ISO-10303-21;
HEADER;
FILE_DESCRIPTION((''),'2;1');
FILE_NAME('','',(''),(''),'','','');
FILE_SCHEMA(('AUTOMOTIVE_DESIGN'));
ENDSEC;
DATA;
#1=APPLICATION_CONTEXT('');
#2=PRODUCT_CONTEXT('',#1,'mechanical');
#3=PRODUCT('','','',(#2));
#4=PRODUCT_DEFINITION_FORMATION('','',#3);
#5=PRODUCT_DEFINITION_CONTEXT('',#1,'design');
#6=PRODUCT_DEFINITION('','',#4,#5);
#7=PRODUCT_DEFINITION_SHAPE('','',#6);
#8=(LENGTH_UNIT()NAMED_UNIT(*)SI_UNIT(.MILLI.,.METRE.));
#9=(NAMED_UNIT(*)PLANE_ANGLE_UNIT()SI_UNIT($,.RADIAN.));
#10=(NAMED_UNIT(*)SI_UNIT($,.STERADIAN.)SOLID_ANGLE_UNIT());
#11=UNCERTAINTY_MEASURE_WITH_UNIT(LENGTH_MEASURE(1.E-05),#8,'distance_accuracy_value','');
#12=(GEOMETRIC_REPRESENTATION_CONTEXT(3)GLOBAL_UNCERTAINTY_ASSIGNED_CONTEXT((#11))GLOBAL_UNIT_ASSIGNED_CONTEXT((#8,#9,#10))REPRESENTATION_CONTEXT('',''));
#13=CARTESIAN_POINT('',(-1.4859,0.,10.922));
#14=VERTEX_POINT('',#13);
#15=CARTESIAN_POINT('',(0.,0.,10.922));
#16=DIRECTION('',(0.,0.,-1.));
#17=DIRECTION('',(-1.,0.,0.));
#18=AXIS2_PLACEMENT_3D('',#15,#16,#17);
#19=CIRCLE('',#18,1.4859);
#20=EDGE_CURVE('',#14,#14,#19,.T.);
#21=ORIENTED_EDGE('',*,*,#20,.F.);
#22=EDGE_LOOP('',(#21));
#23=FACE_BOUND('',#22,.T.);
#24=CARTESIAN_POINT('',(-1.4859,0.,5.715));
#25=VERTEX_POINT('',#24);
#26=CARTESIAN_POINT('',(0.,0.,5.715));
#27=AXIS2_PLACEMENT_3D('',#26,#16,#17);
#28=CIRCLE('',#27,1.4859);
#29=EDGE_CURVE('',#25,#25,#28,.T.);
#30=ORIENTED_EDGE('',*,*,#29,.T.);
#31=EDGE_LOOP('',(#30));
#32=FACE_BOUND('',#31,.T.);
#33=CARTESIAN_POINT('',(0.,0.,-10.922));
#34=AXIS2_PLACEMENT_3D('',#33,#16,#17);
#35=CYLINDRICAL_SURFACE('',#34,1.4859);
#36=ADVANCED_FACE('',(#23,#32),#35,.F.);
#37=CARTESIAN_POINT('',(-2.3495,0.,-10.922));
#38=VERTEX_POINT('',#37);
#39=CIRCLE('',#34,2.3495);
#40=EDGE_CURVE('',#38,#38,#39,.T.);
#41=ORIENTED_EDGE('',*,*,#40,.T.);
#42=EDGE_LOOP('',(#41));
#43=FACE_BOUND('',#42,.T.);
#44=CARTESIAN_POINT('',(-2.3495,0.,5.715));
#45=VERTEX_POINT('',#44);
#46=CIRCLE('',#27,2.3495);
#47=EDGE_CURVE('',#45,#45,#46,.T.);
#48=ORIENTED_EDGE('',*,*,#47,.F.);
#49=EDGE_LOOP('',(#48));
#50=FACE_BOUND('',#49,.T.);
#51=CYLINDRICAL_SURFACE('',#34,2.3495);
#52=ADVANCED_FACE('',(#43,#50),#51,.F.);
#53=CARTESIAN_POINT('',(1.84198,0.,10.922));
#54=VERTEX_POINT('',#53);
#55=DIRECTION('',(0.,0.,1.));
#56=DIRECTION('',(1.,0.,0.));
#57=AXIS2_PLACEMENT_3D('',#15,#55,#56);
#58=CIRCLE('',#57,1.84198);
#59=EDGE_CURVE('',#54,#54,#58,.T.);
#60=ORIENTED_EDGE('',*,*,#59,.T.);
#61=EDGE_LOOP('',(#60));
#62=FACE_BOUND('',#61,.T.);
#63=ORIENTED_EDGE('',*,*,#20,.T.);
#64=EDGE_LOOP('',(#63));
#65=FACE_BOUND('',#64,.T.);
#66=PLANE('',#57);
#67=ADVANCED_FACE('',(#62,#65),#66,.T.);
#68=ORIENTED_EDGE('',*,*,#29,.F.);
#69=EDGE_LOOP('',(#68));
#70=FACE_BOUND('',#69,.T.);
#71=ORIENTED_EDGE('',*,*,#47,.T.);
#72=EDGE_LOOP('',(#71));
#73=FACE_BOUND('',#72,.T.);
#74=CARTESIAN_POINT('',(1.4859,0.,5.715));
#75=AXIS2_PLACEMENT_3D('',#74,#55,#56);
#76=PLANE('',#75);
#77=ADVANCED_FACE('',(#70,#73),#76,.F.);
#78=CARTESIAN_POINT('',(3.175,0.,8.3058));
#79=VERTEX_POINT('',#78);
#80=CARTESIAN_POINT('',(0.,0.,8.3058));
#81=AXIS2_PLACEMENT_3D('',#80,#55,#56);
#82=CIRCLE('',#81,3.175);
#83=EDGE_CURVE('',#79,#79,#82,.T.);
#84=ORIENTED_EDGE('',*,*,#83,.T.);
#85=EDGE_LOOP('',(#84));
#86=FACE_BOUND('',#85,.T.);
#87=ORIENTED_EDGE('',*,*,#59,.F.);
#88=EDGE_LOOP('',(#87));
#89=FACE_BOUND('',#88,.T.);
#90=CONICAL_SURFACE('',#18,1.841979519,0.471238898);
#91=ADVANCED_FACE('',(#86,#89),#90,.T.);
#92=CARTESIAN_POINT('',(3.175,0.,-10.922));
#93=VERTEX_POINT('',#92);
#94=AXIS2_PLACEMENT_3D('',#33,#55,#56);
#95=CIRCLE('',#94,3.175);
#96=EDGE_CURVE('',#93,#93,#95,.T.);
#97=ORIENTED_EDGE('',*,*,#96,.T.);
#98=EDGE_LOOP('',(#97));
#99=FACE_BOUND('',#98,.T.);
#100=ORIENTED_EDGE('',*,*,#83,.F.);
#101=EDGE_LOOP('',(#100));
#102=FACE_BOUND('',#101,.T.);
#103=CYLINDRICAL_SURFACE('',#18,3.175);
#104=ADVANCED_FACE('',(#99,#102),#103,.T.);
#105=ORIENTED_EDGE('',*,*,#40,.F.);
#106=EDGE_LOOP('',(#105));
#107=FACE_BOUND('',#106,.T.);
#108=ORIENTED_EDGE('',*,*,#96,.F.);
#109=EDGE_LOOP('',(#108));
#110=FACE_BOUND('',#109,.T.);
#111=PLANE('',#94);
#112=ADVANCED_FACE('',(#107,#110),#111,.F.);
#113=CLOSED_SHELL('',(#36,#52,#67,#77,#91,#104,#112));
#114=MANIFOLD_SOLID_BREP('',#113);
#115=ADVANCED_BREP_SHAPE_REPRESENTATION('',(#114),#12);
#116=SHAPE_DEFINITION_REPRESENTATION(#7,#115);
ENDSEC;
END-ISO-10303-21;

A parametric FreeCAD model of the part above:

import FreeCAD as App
import Part
import Sketcher
from FreeCAD import Vector
Q = App.Units.Quantity


def add_polygon(sketch, points):
    """Adds a closed chain of lines whose ends are joined by coincident constraints."""
    first, n = sketch.GeometryCount, len(points)
    for a, b in zip(points, points[1:] + points[:1]):
        sketch.addGeometry(Part.LineSegment(App.Vector(*a, 0), App.Vector(*b, 0)), False)
    for i in range(n):
        sketch.addConstraint(Sketcher.Constraint("Coincident", first + i, 2, first + (i + 1) % n, 1))

doc = App.newDocument("Part")
body = doc.addObject("PartDesign::Body", "Body")

# Sketch on XY plane
sketch1 = body.newObject("Sketcher::SketchObject", "Sketch")
sketch1.AttachmentSupport = (doc.getObject("XY_Plane"), [""])
sketch1.MapMode = "FlatFace"
sketch1.addGeometry(Part.Circle(Vector(0, 0, 0), Vector(0, 0, 1), 3.2), False)
sketch1.addConstraint([
    Sketcher.Constraint("Coincident", 0, 3, -1, 1),
    Sketcher.Constraint("Diameter", 0, Q("0.25 in")),
])
pad1 = body.newObject("PartDesign::Pad", "Pad")
pad1.Profile = sketch1
pad1.Length = Q("0.86 in")
pad1.Midplane = True

# Sketch on XY plane
sketch2 = body.newObject("Sketcher::SketchObject", "Sketch001")
sketch2.AttachmentSupport = (doc.getObject("XY_Plane"), [""])
sketch2.MapMode = "FlatFace"
sketch2.AttachmentOffset = App.Placement(Vector(0, 0, -0.43 * 25.4), App.Rotation())
sketch2.addGeometry(Part.Circle(Vector(0, 0, 0), Vector(0, 0, 1), 1.5), False)
sketch2.addConstraint([
    Sketcher.Constraint("Coincident", 0, 3, -1, 1),
    Sketcher.Constraint("Diameter", 0, Q("0.117 in")),
])
doc.recompute()
hole = body.newObject("PartDesign::Hole", "Hole")
hole.Profile = sketch2
hole.ThreadType = "None"
hole.Diameter = Q("0.117 in")
hole.DepthType = "ThroughAll"
hole.HoleCutType = "Counterbore"
hole.HoleCutDiameter = Q("0.185 in")
hole.HoleCutDepth = Q("0.655 in")
hole.Reversed = True

# Sketch on XZ plane
sketch3 = body.newObject("Sketcher::SketchObject", "Sketch002")
sketch3.AttachmentSupport = (doc.getObject("XZ_Plane"), [""])
sketch3.MapMode = "FlatFace"
add_polygon(sketch3, [(-1.8, 10.9), (-3.2, 8.3), (-3.2, 10.9)])  # lines 0-2
sketch3.addConstraint([
    Sketcher.Constraint("Vertical", 1),
    Sketcher.Constraint("Horizontal", 2),
    Sketcher.Constraint("Angle", 0, Q("-117 deg")),
    Sketcher.Constraint("DistanceY", 1, 1, 1, 2, Q("0.103 in")),
    Sketcher.Constraint("DistanceY", -1, 1, 1, 2, Q("0.43 in")),
    Sketcher.Constraint("DistanceX", 0, 2, -1, 1, Q("0.125 in")),
])
groove = body.newObject("PartDesign::Groove", "Groove")
groove.Profile = sketch3
groove.ReferenceAxis = (sketch3, ["V_Axis"])
groove.Angle = 360

doc.recompute()
